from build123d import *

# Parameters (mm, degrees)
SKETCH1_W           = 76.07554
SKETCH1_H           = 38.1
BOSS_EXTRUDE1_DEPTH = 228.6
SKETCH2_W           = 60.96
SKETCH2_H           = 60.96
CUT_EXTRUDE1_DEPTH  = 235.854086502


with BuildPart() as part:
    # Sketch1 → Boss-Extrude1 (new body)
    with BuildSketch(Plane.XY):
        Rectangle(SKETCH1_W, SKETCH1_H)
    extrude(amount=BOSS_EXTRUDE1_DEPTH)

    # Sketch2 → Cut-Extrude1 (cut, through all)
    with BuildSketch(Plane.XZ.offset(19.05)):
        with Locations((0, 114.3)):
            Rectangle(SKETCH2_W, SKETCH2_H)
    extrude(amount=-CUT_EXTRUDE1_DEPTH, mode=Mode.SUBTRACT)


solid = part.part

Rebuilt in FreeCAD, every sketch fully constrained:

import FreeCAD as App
import Part
import Sketcher
Q = App.Units.Quantity

doc = App.newDocument("Part")
body = doc.addObject("PartDesign::Body", "Body")

# Sketch on XY plane
sketch1 = doc.addObject("Sketcher::SketchObject", "Sketch")
body.addObject(sketch1)
sketch1.AttachmentSupport = (doc.XY_Plane, [""])
sketch1.MapMode = "FlatFace"
sketch1.addGeometry(Part.LineSegment(App.Vector(-38, 19, 0), App.Vector(-38, -19, 0)), False)
sketch1.addGeometry(Part.LineSegment(App.Vector(-38, -19, 0), App.Vector(38, -19, 0)), False)
sketch1.addGeometry(Part.LineSegment(App.Vector(38, -19, 0), App.Vector(38, 19, 0)), False)
sketch1.addGeometry(Part.LineSegment(App.Vector(38, 19, 0), App.Vector(-38, 19, 0)), False)
sketch1.addConstraint(Sketcher.Constraint("Coincident", 0, 2, 1, 1))
sketch1.addConstraint(Sketcher.Constraint("Coincident", 1, 2, 2, 1))
sketch1.addConstraint(Sketcher.Constraint("Coincident", 2, 2, 3, 1))
sketch1.addConstraint(Sketcher.Constraint("Coincident", 3, 2, 0, 1))
sketch1.addConstraint(Sketcher.Constraint("Vertical", 0))
sketch1.addConstraint(Sketcher.Constraint("Horizontal", 1))
sketch1.addConstraint(Sketcher.Constraint("Vertical", 2))
sketch1.addConstraint(Sketcher.Constraint("Horizontal", 3))
sketch1.addConstraint(Sketcher.Constraint("Symmetric", 0, 2, 2, 2, -1, 1))
sketch1.addConstraint(Sketcher.Constraint("DistanceY", 0, 2, 0, 1, Q("1.5 in")))
sketch1.addConstraint(Sketcher.Constraint("DistanceX", 1, 1, 1, 2, Q("2.9951 in")))
pad1 = doc.addObject("PartDesign::Pad", "Pad")
body.addObject(pad1)
pad1.Profile = sketch1
pad1.Length = Q("9 in")

# Sketch on XZ plane
sketch2 = doc.addObject("Sketcher::SketchObject", "Sketch001")
body.addObject(sketch2)
sketch2.AttachmentSupport = (doc.XZ_Plane, [""])
sketch2.MapMode = "FlatFace"
sketch2.AttachmentOffset = App.Placement(App.Vector(0, 0, 0.75 * 25.4), App.Rotation())
sketch2.addGeometry(Part.LineSegment(App.Vector(-30, 145, 0), App.Vector(-30, 84, 0)), False)
sketch2.addGeometry(Part.LineSegment(App.Vector(-30, 84, 0), App.Vector(30, 84, 0)), False)
sketch2.addGeometry(Part.LineSegment(App.Vector(30, 84, 0), App.Vector(30, 145, 0)), False)
sketch2.addGeometry(Part.LineSegment(App.Vector(30, 145, 0), App.Vector(-30, 145, 0)), False)
sketch2.addConstraint(Sketcher.Constraint("Coincident", 0, 2, 1, 1))
sketch2.addConstraint(Sketcher.Constraint("Coincident", 1, 2, 2, 1))
sketch2.addConstraint(Sketcher.Constraint("Coincident", 2, 2, 3, 1))
sketch2.addConstraint(Sketcher.Constraint("Coincident", 3, 2, 0, 1))
sketch2.addConstraint(Sketcher.Constraint("Vertical", 0))
sketch2.addConstraint(Sketcher.Constraint("Horizontal", 1))
sketch2.addConstraint(Sketcher.Constraint("Vertical", 2))
sketch2.addConstraint(Sketcher.Constraint("Horizontal", 3))
sketch2.addConstraint(Sketcher.Constraint("Equal", 3, 0))
sketch2.addConstraint(Sketcher.Constraint("DistanceX", 1, 1, 1, 2, Q("2.4 in")))
sketch2.addConstraint(Sketcher.Constraint("DistanceX", 0, 2, -1, 1, Q("1.2 in")))
sketch2.addConstraint(Sketcher.Constraint("DistanceY", -1, 1, 0, 2, Q("3.3 in")))
pocket1 = doc.addObject("PartDesign::Pocket", "Pocket")
body.addObject(pocket1)
pocket1.Profile = sketch2
pocket1.Type = "ThroughAll"

doc.recompute()
